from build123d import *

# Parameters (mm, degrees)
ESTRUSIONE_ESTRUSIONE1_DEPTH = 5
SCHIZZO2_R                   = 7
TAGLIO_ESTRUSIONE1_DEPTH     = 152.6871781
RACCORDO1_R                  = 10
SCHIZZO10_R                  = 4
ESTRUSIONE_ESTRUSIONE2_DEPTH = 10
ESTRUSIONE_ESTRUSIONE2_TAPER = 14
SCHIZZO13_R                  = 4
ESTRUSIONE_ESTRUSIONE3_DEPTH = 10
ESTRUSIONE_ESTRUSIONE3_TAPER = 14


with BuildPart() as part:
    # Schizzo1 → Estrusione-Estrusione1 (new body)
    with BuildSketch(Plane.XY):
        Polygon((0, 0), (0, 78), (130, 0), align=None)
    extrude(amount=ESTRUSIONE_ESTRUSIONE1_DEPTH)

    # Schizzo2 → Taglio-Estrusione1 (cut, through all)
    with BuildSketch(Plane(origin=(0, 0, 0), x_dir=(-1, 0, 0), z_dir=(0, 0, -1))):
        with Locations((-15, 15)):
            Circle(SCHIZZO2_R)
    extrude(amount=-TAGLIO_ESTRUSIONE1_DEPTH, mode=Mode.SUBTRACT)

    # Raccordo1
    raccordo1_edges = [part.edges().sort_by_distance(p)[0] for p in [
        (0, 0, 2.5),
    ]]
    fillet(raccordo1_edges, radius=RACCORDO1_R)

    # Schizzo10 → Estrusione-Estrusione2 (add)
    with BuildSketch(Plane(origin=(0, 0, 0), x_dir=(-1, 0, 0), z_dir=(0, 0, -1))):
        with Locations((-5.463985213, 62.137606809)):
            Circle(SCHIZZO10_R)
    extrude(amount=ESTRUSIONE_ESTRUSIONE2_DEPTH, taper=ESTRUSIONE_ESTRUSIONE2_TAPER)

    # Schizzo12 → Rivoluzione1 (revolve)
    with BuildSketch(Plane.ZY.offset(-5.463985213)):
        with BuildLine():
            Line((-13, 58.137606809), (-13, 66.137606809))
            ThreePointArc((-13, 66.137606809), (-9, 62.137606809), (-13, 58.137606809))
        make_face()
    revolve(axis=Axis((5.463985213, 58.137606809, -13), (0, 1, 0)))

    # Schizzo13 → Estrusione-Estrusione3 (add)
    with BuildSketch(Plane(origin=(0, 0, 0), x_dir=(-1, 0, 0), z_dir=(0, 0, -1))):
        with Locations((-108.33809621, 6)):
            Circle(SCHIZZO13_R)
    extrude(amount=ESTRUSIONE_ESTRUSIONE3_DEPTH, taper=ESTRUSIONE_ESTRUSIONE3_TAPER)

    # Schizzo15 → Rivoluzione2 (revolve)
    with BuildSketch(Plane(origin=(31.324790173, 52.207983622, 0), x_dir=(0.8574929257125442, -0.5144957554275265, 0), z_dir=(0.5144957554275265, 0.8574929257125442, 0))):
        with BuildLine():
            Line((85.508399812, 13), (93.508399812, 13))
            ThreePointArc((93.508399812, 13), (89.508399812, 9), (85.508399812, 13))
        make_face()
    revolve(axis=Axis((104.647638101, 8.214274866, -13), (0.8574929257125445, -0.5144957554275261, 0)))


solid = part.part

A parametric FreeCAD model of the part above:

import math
import FreeCAD as App
import Part
import Sketcher
from FreeCAD import Vector


def edges_at(feature, points):
    """Names of the edges that pass closest to the given points."""
    edges = feature.Shape.Edges
    near = lambda p: min(range(len(edges)), key=lambda i: edges[i].distToShape(Part.Vertex(*p))[0])
    return sorted({f"Edge{near(p) + 1}" for p in points})


def add_polygon(sketch, points):
    """Adds a closed chain of lines whose ends are joined by coincident constraints."""
    first, n = sketch.GeometryCount, len(points)
    for a, b in zip(points, points[1:] + points[:1]):
        sketch.addGeometry(Part.LineSegment(App.Vector(*a, 0), App.Vector(*b, 0)), False)
    for i in range(n):
        sketch.addConstraint(Sketcher.Constraint("Coincident", first + i, 2, first + (i + 1) % n, 1))

doc = App.newDocument("Part")
params = doc.addObject("Spreadsheet::Sheet", "Params")
for row, (alias, value) in enumerate([
    ("sketch1_width", "130 mm"),
    ("sketch1_height", "78 mm"),
    ("pad1_length", "5 mm"),
    ("sketch2_diameter", "14 mm"),
    ("fillet_radius", "10 mm"),
    ("sketch3_diameter", "8 mm"),
    ("pad2_length", "10 mm"),
    ("pad2_taper", "-14 deg"),
    ("sketch4_radius", "4 mm"),
    ("revolution_angle", "360 deg"),
    ("sketch5_diameter", "8 mm"),
    ("pad3_length", "10 mm"),
    ("pad3_taper", "-14 deg"),
    ("sketch6_radius", "4 mm"),
    ("revolution2_angle", "360 deg"),
], start=1):
    params.set(f"A{row}", alias)
    params.set(f"B{row}", "=" + value)
    params.setAlias(f"B{row}", alias)

body = doc.addObject("PartDesign::Body", "Body")

# Sketch on XY plane
sketch1 = body.newObject("Sketcher::SketchObject", "Sketch")
sketch1.AttachmentSupport = (doc.getObject("XY_Plane"), [""])
sketch1.MapMode = "FlatFace"
add_polygon(sketch1, [(0, 78), (0, 0), (130, 0)])  # lines 0-2
sketch1.addConstraint(Sketcher.Constraint("Vertical", 0))
sketch1.addConstraint(Sketcher.Constraint("Horizontal", 1))
sketch1.addConstraint(Sketcher.Constraint("Coincident", 0, 2, -1, 1))
sketch1.addConstraint(Sketcher.Constraint("DistanceX", 1, 1, 1, 2, 130.0))
sketch1.addConstraint(Sketcher.Constraint("DistanceY", 0, 2, 0, 1, 78.0))
sketch1.setExpression("Constraints[6]", "Params.sketch1_width")
sketch1.setExpression("Constraints[7]", "Params.sketch1_height")
pad1 = body.newObject("PartDesign::Pad", "Pad")
pad1.Profile = sketch1
pad1.setExpression("Length", "Params.pad1_length")

# Sketch on XY plane
sketch2 = body.newObject("Sketcher::SketchObject", "Sketch001")
sketch2.AttachmentSupport = (doc.getObject("XY_Plane"), [""])
sketch2.MapMode = "FlatFace"
sketch2.addGeometry(Part.Circle(Vector(15, 15, 0), Vector(0, 0, 1), 7), False)
sketch2.addConstraint(Sketcher.Constraint("Diameter", 0, 14.0))
sketch2.addConstraint(Sketcher.Constraint("DistanceX", -1, 1, 0, 3, 15.0))
sketch2.addConstraint(Sketcher.Constraint("DistanceY", -1, 1, 0, 3, 15.0))
sketch2.setExpression("Constraints[0]", "Params.sketch2_diameter")
pocket1 = body.newObject("PartDesign::Pocket", "Pocket")
pocket1.Profile = sketch2
pocket1.Type = "ThroughAll"
pocket1.Reversed = True
doc.recompute()

fillet = body.newObject("PartDesign::Fillet", "Fillet")
fillet.Base = (pocket1, edges_at(pocket1, [(0, 0, 2.5)]))
fillet.setExpression("Radius", "Params.fillet_radius")

# Sketch on XY plane
sketch3 = body.newObject("Sketcher::SketchObject", "Sketch002")
sketch3.AttachmentSupport = (doc.getObject("XY_Plane"), [""])
sketch3.MapMode = "FlatFace"
sketch3.addGeometry(Part.Circle(Vector(5.5, 62.1, 0), Vector(0, 0, 1), 4), False)
sketch3.addConstraint(Sketcher.Constraint("Diameter", 0, 8.0))
sketch3.addConstraint(Sketcher.Constraint("DistanceX", -1, 1, 0, 3, 5.463985))
sketch3.addConstraint(Sketcher.Constraint("DistanceY", -1, 1, 0, 3, 62.137607))
sketch3.setExpression("Constraints[0]", "Params.sketch3_diameter")
pad2 = body.newObject("PartDesign::Pad", "Pad001")
pad2.Profile = sketch3
pad2.setExpression("Length", "Params.pad2_length")
pad2.Reversed = True
pad2.setExpression("TaperAngle", "Params.pad2_taper")

# Sketch on YZ plane
sketch4 = body.newObject("Sketcher::SketchObject", "Sketch003")
sketch4.AttachmentSupport = (doc.getObject("YZ_Plane"), [""])
sketch4.MapMode = "FlatFace"
sketch4.AttachmentOffset = App.Placement(Vector(0, 0, 5.463985), App.Rotation())
sketch4.addGeometry(Part.LineSegment(Vector(66.1, -13, 0), Vector(58.1, -13, 0)), False)
sketch4.addGeometry(Part.ArcOfCircle(Part.Circle(Vector(62.1, -13, 0), Vector(0, 0, 1), 4), math.radians(0), math.radians(180)), False)
sketch4.addGeometry(Part.LineSegment(Vector(58.1, -13, 0), Vector(66.1, -13, 0)), True)  # axis
sketch4.addConstraint(Sketcher.Constraint("Coincident", 0, 1, 1, 1))
sketch4.addConstraint(Sketcher.Constraint("Coincident", 1, 2, 0, 2))
sketch4.addConstraint(Sketcher.Constraint("Horizontal", 0))
sketch4.addConstraint(Sketcher.Constraint("Horizontal", 2))
sketch4.addConstraint(Sketcher.Constraint("Coincident", 2, 1, 1, 2))
sketch4.addConstraint(Sketcher.Constraint("Horizontal", 1, 3, 0, 1))
sketch4.addConstraint(Sketcher.Constraint("Equal", 0, 2))
sketch4.addConstraint(Sketcher.Constraint("Radius", 1, 4.0))
sketch4.addConstraint(Sketcher.Constraint("DistanceY", 1, 3, -1, 1, 13.0))
sketch4.addConstraint(Sketcher.Constraint("DistanceX", -1, 1, 1, 3, 62.137607))
sketch4.setExpression("Constraints[7]", "Params.sketch4_radius")
revolution = body.newObject("PartDesign::Revolution", "Revolution")
revolution.Profile = sketch4
revolution.ReferenceAxis = (sketch4, ["Axis0"])
revolution.setExpression("Angle", "Params.revolution_angle")

# Sketch on XY plane
sketch5 = body.newObject("Sketcher::SketchObject", "Sketch004")
sketch5.AttachmentSupport = (doc.getObject("XY_Plane"), [""])
sketch5.MapMode = "FlatFace"
sketch5.addGeometry(Part.Circle(Vector(108.3, 6, 0), Vector(0, 0, 1), 4), False)
sketch5.addConstraint(Sketcher.Constraint("Diameter", 0, 8.0))
sketch5.addConstraint(Sketcher.Constraint("DistanceY", -1, 1, 0, 3, 6.0))
sketch5.addConstraint(Sketcher.Constraint("DistanceX", -1, 1, 0, 3, 108.338096))
sketch5.setExpression("Constraints[0]", "Params.sketch5_diameter")
pad3 = body.newObject("PartDesign::Pad", "Pad002")
pad3.Profile = sketch5
pad3.setExpression("Length", "Params.pad3_length")
pad3.Reversed = True
pad3.setExpression("TaperAngle", "Params.pad3_taper")

# Sketch on an angled plane
sketch6 = body.newObject("Sketcher::SketchObject", "Sketch005")
sketch6.Placement = App.Placement(Vector(31.32479, 52.207984, 0), App.Rotation(Vector(0.857492926, -0.514495755, 0), Vector(0, 0, -1), Vector(0.514495755, 0.857492926, 0), "ZXY"))
sketch6.addGeometry(Part.LineSegment(Vector(93.5, 13, 0), Vector(85.5, 13, 0)), False)
sketch6.addGeometry(Part.ArcOfCircle(Part.Circle(Vector(89.5, 13, 0), Vector(0, 0, 1), 4), math.radians(180), math.radians(360)), False)
sketch6.addGeometry(Part.LineSegment(Vector(85.5, 13, 0), Vector(93.5, 13, 0)), True)  # axis
sketch6.addConstraint(Sketcher.Constraint("Coincident", 0, 1, 1, 2))
sketch6.addConstraint(Sketcher.Constraint("Coincident", 1, 1, 0, 2))
sketch6.addConstraint(Sketcher.Constraint("Horizontal", 0))
sketch6.addConstraint(Sketcher.Constraint("Horizontal", 2))
sketch6.addConstraint(Sketcher.Constraint("Coincident", 2, 1, 1, 1))
sketch6.addConstraint(Sketcher.Constraint("Horizontal", 1, 3, 0, 1))
sketch6.addConstraint(Sketcher.Constraint("Equal", 0, 2))
sketch6.addConstraint(Sketcher.Constraint("Radius", 1, 4.0))
sketch6.addConstraint(Sketcher.Constraint("DistanceY", -1, 1, 1, 3, 13.0))
sketch6.addConstraint(Sketcher.Constraint("DistanceX", -1, 1, 1, 3, 89.5084))
sketch6.setExpression("Constraints[7]", "Params.sketch6_radius")
revolution2 = body.newObject("PartDesign::Revolution", "Revolution001")
revolution2.Profile = sketch6
revolution2.ReferenceAxis = (sketch6, ["Axis0"])
revolution2.setExpression("Angle", "Params.revolution2_angle")

doc.recompute()
